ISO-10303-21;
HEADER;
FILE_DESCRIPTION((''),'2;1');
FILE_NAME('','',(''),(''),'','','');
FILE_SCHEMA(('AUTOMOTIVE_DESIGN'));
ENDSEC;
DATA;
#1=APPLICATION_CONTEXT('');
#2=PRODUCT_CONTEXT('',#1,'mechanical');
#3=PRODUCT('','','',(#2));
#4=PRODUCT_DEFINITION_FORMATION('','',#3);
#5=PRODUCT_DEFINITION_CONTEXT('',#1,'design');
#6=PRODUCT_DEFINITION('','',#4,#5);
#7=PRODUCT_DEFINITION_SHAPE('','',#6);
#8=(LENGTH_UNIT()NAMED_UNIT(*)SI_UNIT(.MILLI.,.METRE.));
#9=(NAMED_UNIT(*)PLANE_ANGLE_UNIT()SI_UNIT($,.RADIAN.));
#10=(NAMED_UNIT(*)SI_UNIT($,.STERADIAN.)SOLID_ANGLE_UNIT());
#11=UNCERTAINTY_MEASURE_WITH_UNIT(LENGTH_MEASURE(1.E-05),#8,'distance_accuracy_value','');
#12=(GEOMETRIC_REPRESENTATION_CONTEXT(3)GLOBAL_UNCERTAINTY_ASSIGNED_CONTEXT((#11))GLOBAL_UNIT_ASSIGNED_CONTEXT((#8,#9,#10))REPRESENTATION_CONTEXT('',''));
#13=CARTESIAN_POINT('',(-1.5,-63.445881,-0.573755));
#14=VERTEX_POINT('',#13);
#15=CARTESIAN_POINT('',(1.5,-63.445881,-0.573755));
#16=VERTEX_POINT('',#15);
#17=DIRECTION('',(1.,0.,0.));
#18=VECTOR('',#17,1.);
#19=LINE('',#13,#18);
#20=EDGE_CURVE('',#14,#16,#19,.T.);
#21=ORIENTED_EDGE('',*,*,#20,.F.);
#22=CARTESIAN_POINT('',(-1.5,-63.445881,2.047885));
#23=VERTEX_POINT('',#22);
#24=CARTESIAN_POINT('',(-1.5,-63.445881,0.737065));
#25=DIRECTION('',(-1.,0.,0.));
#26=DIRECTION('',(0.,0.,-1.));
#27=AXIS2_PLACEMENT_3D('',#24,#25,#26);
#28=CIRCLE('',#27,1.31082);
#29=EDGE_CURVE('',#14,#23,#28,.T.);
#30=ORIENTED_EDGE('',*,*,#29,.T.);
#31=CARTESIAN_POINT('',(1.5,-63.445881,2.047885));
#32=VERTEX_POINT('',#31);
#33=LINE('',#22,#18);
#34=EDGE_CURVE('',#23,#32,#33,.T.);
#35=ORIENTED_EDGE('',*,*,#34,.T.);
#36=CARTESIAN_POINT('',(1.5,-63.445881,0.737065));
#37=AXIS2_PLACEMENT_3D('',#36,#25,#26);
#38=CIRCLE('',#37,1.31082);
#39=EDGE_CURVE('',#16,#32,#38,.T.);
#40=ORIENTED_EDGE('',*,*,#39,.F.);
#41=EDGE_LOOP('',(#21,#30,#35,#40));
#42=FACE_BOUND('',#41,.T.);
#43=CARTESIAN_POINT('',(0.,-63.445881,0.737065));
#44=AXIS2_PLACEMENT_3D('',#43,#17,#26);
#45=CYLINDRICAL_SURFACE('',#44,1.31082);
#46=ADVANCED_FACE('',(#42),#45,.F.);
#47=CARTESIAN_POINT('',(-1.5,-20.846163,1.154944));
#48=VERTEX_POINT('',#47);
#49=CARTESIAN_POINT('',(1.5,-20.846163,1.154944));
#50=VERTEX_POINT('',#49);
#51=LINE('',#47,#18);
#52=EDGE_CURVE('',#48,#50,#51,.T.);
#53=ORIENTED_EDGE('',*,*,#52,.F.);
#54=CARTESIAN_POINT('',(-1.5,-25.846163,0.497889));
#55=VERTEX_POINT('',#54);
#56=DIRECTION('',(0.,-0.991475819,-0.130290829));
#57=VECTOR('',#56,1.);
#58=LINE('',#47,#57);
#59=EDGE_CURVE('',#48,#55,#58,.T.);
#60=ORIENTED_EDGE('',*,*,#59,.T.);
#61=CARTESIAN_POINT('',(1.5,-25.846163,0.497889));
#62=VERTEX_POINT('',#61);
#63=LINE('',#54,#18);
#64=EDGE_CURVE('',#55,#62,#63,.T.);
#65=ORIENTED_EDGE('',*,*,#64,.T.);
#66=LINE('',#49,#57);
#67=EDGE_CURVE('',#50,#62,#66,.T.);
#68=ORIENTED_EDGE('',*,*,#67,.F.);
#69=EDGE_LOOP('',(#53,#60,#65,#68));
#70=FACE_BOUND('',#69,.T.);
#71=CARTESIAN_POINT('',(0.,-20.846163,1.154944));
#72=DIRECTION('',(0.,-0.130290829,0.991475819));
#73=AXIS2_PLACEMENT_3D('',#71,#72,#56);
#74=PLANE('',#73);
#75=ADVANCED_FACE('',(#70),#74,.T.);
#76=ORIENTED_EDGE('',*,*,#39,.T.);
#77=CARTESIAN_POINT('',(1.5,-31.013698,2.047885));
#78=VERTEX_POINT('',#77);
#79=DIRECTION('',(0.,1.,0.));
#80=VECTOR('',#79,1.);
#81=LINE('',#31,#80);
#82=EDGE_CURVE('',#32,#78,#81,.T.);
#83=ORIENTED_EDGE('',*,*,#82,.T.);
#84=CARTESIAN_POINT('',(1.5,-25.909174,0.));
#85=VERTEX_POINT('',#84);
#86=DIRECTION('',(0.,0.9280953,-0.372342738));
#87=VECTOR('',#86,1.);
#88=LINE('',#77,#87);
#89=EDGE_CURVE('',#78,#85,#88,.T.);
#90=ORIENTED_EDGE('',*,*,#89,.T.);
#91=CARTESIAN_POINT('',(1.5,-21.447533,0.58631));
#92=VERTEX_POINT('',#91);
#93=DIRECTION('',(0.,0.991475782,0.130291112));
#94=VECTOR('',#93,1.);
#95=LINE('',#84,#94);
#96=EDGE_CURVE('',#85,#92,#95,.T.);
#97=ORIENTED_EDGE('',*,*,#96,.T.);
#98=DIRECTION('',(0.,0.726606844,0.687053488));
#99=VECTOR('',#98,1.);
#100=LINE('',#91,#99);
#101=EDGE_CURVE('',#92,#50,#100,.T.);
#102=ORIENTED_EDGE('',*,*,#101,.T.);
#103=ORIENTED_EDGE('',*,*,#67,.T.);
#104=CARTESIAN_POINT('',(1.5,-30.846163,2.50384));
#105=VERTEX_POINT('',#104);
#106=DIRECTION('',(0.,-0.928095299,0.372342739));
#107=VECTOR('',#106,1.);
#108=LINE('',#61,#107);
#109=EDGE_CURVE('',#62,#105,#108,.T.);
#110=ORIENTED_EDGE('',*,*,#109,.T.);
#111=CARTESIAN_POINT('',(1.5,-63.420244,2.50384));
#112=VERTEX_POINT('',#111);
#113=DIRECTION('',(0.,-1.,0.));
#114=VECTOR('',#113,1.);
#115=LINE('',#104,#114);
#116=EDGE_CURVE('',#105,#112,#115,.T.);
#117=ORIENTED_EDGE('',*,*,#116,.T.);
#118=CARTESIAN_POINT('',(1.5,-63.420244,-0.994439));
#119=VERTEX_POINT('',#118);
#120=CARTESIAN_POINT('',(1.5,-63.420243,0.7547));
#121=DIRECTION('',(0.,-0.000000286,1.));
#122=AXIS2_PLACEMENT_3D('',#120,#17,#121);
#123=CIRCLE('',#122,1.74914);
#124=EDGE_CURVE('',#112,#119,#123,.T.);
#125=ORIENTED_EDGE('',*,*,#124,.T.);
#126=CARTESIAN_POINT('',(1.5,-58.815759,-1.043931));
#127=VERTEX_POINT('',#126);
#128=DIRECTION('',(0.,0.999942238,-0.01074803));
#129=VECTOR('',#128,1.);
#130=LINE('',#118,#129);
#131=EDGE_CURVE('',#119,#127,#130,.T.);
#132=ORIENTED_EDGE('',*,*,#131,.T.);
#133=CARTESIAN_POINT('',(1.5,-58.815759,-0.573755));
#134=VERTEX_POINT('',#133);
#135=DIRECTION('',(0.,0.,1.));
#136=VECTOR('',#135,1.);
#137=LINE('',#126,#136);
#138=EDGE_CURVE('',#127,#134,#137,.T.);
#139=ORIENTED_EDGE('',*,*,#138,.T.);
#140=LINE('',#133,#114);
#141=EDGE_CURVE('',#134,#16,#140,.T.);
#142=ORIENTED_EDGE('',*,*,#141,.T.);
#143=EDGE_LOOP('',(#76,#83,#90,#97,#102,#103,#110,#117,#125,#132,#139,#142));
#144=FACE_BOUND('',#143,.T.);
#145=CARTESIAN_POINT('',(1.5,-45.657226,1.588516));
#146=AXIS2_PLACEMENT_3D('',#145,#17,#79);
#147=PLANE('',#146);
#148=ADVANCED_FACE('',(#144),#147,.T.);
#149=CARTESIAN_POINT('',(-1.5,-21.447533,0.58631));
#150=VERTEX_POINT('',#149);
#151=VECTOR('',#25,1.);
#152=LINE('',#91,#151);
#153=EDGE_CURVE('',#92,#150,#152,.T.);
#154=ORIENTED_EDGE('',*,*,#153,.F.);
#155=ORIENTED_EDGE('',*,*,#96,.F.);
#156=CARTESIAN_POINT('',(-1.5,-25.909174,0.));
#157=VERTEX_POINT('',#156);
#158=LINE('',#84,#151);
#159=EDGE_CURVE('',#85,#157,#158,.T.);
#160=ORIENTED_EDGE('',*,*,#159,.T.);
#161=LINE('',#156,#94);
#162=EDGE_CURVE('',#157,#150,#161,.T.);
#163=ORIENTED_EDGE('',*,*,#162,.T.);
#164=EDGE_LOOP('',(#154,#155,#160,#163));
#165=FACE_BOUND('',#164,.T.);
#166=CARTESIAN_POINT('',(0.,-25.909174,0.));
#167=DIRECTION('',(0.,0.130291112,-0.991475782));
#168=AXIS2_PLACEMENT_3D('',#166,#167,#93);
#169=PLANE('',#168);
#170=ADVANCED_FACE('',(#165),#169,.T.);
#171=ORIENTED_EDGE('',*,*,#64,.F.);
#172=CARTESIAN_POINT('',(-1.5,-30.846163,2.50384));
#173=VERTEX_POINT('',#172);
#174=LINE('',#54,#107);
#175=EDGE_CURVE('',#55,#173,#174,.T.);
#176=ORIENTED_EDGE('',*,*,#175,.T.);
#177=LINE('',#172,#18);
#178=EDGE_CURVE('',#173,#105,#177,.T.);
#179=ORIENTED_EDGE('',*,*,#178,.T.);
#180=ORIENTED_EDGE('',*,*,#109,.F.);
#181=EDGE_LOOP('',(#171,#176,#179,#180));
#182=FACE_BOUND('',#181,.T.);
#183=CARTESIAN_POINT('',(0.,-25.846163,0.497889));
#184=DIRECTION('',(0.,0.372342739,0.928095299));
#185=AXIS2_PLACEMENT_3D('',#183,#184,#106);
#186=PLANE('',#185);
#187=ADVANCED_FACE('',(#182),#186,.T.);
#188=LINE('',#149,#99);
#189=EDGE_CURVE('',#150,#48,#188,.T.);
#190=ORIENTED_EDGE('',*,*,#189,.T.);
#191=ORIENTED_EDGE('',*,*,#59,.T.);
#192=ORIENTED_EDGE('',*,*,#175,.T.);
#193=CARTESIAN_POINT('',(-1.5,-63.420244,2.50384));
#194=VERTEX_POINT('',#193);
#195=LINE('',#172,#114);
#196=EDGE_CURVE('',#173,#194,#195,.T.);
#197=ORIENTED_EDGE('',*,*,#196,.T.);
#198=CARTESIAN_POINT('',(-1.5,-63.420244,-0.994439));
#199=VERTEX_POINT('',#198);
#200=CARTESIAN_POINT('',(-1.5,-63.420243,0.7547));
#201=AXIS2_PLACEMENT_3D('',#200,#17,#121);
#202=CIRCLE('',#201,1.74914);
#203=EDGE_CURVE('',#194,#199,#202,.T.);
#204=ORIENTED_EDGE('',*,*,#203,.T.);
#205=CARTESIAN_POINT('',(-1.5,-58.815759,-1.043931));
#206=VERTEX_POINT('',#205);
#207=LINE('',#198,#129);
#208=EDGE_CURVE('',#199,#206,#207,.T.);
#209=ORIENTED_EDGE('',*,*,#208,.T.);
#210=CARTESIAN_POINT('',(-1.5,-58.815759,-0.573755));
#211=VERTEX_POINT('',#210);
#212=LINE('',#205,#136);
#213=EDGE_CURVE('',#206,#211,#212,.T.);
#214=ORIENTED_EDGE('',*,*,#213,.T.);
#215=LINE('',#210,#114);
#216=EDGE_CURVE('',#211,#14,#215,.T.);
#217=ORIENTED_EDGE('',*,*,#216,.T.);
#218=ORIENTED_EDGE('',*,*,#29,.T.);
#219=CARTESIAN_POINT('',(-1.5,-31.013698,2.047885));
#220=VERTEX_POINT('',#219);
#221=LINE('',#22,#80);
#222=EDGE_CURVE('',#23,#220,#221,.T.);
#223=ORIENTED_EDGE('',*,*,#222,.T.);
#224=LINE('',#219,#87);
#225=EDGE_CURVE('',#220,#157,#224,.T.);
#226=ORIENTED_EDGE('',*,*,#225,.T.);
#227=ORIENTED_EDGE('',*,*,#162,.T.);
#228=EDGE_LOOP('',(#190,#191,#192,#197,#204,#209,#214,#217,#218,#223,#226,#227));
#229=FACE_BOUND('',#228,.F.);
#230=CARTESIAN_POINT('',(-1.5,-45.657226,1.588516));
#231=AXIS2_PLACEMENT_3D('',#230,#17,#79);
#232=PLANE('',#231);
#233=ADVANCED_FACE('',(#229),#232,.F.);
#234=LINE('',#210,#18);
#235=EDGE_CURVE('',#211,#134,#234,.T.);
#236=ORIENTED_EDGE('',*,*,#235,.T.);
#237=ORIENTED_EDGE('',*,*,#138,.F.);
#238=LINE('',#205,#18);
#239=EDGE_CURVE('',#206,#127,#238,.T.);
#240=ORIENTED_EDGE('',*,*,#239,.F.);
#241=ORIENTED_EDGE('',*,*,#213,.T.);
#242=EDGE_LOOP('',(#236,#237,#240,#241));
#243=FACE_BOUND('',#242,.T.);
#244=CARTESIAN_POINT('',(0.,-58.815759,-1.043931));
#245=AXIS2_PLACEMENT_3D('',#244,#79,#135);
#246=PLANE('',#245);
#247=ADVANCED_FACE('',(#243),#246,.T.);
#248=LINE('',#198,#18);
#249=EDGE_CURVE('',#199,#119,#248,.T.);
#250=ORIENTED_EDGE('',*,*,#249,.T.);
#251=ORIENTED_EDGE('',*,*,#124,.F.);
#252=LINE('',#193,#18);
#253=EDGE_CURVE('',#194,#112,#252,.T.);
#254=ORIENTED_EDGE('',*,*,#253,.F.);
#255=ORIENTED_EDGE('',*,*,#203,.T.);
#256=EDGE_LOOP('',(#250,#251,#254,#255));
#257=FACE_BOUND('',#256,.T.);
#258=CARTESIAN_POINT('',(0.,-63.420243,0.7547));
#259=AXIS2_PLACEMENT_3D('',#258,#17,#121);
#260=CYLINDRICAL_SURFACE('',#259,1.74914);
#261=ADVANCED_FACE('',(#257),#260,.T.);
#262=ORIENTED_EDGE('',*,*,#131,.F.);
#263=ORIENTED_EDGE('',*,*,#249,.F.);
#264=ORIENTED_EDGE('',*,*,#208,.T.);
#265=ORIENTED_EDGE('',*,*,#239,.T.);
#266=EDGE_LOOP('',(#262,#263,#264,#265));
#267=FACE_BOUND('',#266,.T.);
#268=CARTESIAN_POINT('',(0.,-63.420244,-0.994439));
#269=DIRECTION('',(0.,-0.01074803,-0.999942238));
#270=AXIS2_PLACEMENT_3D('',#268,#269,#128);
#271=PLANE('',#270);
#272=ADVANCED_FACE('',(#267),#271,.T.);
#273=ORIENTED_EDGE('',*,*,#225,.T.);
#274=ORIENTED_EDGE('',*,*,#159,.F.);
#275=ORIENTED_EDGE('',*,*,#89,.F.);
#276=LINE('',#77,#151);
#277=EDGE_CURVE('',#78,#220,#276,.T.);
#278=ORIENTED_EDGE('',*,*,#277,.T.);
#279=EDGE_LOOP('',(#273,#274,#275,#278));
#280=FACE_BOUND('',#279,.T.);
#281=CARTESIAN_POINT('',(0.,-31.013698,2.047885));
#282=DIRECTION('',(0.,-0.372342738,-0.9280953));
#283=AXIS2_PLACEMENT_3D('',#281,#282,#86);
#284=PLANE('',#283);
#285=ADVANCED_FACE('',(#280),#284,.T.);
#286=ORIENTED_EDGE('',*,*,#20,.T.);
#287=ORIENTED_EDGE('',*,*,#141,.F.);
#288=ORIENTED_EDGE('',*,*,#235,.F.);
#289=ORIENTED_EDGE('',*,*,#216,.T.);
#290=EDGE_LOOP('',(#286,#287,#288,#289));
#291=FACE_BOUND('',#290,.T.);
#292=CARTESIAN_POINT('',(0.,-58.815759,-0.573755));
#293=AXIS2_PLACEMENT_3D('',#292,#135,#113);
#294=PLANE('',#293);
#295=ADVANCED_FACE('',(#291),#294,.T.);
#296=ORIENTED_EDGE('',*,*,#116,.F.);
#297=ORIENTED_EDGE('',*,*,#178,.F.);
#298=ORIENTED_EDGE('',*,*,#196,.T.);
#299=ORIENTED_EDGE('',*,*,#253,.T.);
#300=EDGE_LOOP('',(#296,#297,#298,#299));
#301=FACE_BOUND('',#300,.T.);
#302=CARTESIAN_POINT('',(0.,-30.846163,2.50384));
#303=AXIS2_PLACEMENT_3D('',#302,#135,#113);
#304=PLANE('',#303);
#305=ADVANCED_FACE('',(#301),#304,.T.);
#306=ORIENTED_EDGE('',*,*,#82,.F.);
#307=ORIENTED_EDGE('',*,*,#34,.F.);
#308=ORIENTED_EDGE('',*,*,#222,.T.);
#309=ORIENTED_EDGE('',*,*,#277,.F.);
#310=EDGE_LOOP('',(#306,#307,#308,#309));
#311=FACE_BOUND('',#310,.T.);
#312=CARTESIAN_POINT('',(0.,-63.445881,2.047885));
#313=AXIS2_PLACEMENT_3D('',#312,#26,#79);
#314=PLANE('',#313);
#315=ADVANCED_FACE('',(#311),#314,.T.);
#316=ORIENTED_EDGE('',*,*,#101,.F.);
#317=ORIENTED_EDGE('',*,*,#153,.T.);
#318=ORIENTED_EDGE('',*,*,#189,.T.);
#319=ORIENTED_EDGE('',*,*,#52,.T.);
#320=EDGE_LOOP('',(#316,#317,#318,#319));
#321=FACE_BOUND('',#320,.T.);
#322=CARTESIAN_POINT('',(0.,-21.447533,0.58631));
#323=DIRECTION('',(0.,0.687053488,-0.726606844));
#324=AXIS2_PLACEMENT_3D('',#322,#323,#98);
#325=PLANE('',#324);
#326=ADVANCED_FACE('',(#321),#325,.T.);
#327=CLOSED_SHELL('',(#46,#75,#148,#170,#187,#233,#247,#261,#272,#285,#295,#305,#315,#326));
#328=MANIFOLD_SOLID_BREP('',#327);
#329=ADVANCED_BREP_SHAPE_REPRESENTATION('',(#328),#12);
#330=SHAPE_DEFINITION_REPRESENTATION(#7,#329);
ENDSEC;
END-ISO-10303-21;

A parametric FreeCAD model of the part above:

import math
import FreeCAD as App
import Part
import Sketcher

doc = App.newDocument("Part")
body = doc.addObject("PartDesign::Body", "Body")

# Sketch on YZ plane
sketch1 = body.newObject("Sketcher::SketchObject", "Sketch")
sketch1.AttachmentSupport = (doc.getObject("YZ_Plane"), [""])
sketch1.MapMode = "FlatFace"
sketch1.addGeometry([
    Part.LineSegment(App.Vector(-21.447533, 0.58631, 0), App.Vector(-20.846163, 1.154944, 0)),  # 0
    Part.LineSegment(App.Vector(-20.846163, 1.154944, 0), App.Vector(-25.846163, 0.497889, 0)),  # 1
    Part.LineSegment(App.Vector(-25.846163, 0.497889, 0), App.Vector(-30.846163, 2.50384, 0)),  # 2
    Part.LineSegment(App.Vector(-30.846163, 2.50384, 0), App.Vector(-63.420244, 2.50384, 0)),  # 3
    Part.ArcOfCircle(Part.Circle(App.Vector(-63.420243, 0.7547, 0), App.Vector(0, 0, 1), 1.74914), math.radians(90.000016), math.radians(269.999984)),  # 4
    Part.LineSegment(App.Vector(-63.420244, -0.994439, 0), App.Vector(-58.815759, -1.043931, 0)),  # 5
    Part.LineSegment(App.Vector(-58.815759, -1.043931, 0), App.Vector(-58.815759, -0.573755, 0)),  # 6
    Part.LineSegment(App.Vector(-58.815759, -0.573755, 0), App.Vector(-63.445881, -0.573755, 0)),  # 7
    Part.ArcOfCircle(Part.Circle(App.Vector(-63.445881, 0.737065, 0), App.Vector(0, 0, 1), 1.31082), math.radians(90), math.radians(270)),  # 8
    Part.LineSegment(App.Vector(-63.445881, 2.047885, 0), App.Vector(-31.013698, 2.047885, 0)),  # 9
    Part.LineSegment(App.Vector(-31.013698, 2.047885, 0), App.Vector(-25.909174, 0, 0)),  # 10
    Part.LineSegment(App.Vector(-25.909174, 0, 0), App.Vector(-21.447533, 0.58631, 0)),  # 11
], False)
sketch1.addConstraint([
    Sketcher.Constraint("Coincident", 0, 2, 1, 1),
    Sketcher.Constraint("Coincident", 1, 2, 2, 1),
    Sketcher.Constraint("Coincident", 2, 2, 3, 1),
    Sketcher.Constraint("Tangent", 3, 2, 4, 1),
    Sketcher.Constraint("Coincident", 4, 2, 5, 1),
    Sketcher.Constraint("Coincident", 5, 2, 6, 1),
    Sketcher.Constraint("Coincident", 6, 2, 7, 1),
    Sketcher.Constraint("Tangent", 7, 2, 8, 2),
    Sketcher.Constraint("Tangent", 8, 1, 9, 1),
    Sketcher.Constraint("Coincident", 9, 2, 10, 1),
    Sketcher.Constraint("Coincident", 10, 2, 11, 1),
    Sketcher.Constraint("Coincident", 11, 2, 0, 1),
    Sketcher.Constraint("Horizontal", 3),
    Sketcher.Constraint("Vertical", 6),
    Sketcher.Constraint("Horizontal", 7),
    Sketcher.Constraint("Horizontal", 9),
    Sketcher.Constraint("PointOnObject", 10, 2, -1),
    Sketcher.Constraint("Parallel", 2, 10),
    Sketcher.Constraint("Parallel", 1, 11),
    Sketcher.Constraint("Vertical", 3, 2, 4, 2),
    Sketcher.Constraint("DistanceX", 1, 2, 0, 2, 5.0),
    Sketcher.Constraint("DistanceX", 2, 2, 1, 2, 5.0),
    Sketcher.Constraint("Distance", 10, 5.5),
    Sketcher.Constraint("Distance", 11, 4.5),
    Sketcher.Constraint("Radius", 4, 1.74914),
    Sketcher.Constraint("Radius", 8, 1.31082),
    Sketcher.Constraint("DistanceX", 3, 2, 3, 1, 32.574081),
    Sketcher.Constraint("DistanceY", -1, 1, 4, 3, 0.7547),
    Sketcher.Constraint("DistanceX", 9, 2, -1, 1, 31.013698),
    Sketcher.Constraint("Distance", 0, 0.827642),
    Sketcher.Constraint("Distance", 5, 4.604751),
    Sketcher.Constraint("DistanceX", 7, 2, 7, 1, 4.630122),
    Sketcher.Constraint("DistanceX", 9, 1, 9, 2, 32.432183),
    Sketcher.Constraint("DistanceY", 6, 1, 6, 2, 0.470176),
    Sketcher.Constraint("DistanceY", -1, 1, 1, 2, 0.497889),
])
pad1 = body.newObject("PartDesign::Pad", "Pad")
pad1.Profile = sketch1
pad1.Type = "TwoLengths"
pad1.Length = 1.5
pad1.Length2 = 1.5

doc.recompute()
